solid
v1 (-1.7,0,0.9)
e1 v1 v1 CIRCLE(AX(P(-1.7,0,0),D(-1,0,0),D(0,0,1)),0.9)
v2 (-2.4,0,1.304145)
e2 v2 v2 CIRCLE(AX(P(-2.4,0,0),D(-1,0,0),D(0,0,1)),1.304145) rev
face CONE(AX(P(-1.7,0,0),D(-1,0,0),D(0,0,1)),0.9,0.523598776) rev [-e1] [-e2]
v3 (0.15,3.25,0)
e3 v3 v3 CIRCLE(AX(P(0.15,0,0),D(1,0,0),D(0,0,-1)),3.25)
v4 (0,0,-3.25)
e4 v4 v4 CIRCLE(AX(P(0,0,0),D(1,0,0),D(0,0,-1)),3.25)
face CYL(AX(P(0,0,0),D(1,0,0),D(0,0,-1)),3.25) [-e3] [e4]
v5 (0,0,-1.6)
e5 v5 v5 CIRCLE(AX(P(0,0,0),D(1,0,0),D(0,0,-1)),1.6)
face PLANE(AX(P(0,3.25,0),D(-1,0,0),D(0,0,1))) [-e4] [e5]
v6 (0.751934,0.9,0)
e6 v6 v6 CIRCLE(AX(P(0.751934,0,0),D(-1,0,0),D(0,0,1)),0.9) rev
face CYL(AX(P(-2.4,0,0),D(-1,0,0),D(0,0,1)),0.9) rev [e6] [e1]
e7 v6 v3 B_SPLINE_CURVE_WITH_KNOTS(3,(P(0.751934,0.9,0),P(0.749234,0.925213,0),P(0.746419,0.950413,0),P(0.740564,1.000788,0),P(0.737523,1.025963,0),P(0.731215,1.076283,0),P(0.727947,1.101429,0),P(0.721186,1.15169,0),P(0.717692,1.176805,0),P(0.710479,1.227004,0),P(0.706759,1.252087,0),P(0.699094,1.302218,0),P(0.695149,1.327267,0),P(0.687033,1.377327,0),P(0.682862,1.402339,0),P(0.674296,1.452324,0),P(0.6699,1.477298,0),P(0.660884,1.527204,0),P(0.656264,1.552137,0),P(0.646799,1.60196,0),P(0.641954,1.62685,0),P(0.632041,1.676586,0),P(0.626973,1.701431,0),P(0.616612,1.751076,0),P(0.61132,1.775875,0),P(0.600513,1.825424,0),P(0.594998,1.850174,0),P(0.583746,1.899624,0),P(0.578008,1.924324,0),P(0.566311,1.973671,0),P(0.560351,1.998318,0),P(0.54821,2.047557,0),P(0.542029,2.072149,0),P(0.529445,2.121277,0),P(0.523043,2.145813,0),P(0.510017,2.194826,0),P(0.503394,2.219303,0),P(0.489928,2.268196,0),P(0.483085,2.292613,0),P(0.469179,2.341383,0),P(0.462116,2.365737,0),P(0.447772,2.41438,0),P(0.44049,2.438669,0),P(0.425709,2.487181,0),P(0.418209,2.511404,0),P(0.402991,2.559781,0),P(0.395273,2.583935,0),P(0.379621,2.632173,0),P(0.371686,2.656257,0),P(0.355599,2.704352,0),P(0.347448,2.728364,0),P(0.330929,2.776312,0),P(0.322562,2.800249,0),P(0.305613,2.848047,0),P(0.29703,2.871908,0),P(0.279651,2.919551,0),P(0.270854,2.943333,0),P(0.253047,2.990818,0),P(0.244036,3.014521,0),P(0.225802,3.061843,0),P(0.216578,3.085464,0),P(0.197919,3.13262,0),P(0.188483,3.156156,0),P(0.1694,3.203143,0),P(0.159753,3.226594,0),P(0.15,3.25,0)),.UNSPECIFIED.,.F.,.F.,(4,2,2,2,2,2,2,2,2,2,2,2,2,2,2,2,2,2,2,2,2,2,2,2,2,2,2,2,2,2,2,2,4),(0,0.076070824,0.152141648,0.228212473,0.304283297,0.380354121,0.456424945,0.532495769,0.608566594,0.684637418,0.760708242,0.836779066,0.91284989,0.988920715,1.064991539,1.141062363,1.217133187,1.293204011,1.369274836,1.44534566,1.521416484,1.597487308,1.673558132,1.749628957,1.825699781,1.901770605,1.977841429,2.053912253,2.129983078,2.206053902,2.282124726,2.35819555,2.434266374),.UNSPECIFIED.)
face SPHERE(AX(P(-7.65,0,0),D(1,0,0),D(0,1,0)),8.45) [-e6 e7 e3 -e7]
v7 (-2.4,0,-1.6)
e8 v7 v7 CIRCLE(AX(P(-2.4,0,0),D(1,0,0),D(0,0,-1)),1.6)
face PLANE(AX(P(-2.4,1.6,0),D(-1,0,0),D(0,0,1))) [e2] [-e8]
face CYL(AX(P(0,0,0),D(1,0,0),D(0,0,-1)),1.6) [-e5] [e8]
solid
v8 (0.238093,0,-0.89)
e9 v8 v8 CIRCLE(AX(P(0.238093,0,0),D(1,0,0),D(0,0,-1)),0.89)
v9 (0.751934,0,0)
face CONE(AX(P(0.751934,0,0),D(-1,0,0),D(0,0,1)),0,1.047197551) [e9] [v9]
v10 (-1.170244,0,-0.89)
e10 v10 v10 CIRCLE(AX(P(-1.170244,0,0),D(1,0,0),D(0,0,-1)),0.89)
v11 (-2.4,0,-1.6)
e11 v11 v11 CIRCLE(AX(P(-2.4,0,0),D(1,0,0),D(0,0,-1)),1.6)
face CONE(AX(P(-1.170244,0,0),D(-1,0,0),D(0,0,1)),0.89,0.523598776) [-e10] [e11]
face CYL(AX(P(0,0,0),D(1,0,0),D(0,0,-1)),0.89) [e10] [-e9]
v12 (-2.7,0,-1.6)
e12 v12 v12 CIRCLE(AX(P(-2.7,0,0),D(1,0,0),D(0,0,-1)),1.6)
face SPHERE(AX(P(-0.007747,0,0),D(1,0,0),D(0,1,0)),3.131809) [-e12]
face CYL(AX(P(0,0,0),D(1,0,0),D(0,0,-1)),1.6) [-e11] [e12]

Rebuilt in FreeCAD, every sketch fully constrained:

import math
import FreeCAD as App
import Part
import Sketcher

V = App.Vector
Q = App.Units.Quantity


def edges_at(feature, points):
    """Names of the edges that pass closest to the given points."""
    edges = feature.Shape.Edges
    near = lambda p: min(range(len(edges)), key=lambda i: edges[i].distToShape(Part.Vertex(*p))[0])
    return sorted({f"Edge{near(p) + 1}" for p in points})

doc = App.newDocument("Part")
params = doc.addObject("Spreadsheet::Sheet", "Params")
for row, (alias, value) in enumerate([
    ("sketch1_radius", "8.45 mm"),
    ("sketch1_width", "2.4 mm"),
    ("sketch1_width2", "3.2 mm"),
    ("sketch1_height", "1.6 mm"),
    ("sketch1_width3", "0.15 mm"),
    ("revolution_angle", "360 deg"),
    ("sketch2_diameter", "1.8 mm"),
    ("hole_diameter", "1.8 mm"),
    ("chamfer_size", "0.7 mm"),
    ("chamfer_size2", "0.404145 mm"),
    ("sketch3_width", "0.3 mm"),
    ("sketch3_length", "1.42 mm"),
    ("revolution2_angle", "360 deg"),
], start=1):
    params.set(f"A{row}", alias)
    params.set(f"B{row}", "=" + value)
    params.setAlias(f"B{row}", alias)

body = doc.addObject("PartDesign::Body", "Body")

# Sketch on XY plane
sketch1 = body.newObject("Sketcher::SketchObject", "Sketch")
sketch1.AttachmentSupport = (doc.getObject("XY_Plane"), [""])
sketch1.MapMode = "FlatFace"
sketch1.addGeometry([
    Part.LineSegment(V(0, 3.25, 0), V(0, 1.6, 0)),  # 0
    Part.LineSegment(V(0, 1.6, 0), V(-2.4, 1.6, 0)),  # 1
    Part.LineSegment(V(-2.4, 1.6, 0), V(-2.4, 0, 0)),  # 2
    Part.LineSegment(V(-2.4, 0, 0), V(0.8, 0, 0)),  # 3
    Part.ArcOfCircle(Part.Circle(V(-7.65, 0, 0), V(0, 0, 1), 8.45), math.radians(0), math.radians(23)),  # 4
    Part.LineSegment(V(0.15, 3.25, 0), V(0, 3.25, 0)),  # 5
], False)
sketch1.addConstraint([
    Sketcher.Constraint("Coincident", 0, 2, 1, 1),
    Sketcher.Constraint("Coincident", 1, 2, 2, 1),
    Sketcher.Constraint("Coincident", 2, 2, 3, 1),
    Sketcher.Constraint("Coincident", 3, 2, 4, 1),
    Sketcher.Constraint("Coincident", 4, 2, 5, 1),
    Sketcher.Constraint("Coincident", 5, 2, 0, 1),
    Sketcher.Constraint("Vertical", 0),
    Sketcher.Constraint("Horizontal", 1),
    Sketcher.Constraint("Vertical", 2),
    Sketcher.Constraint("Horizontal", 3),
    Sketcher.Constraint("Horizontal", 5),
    Sketcher.Constraint("PointOnObject", 4, 3, -1),
    Sketcher.Constraint("PointOnObject", 0, 2, -2),
    Sketcher.Constraint("PointOnObject", 2, 2, -1),
    Sketcher.Constraint("Radius", 4, Q("8.45 mm")),
    Sketcher.Constraint("DistanceX", 1, 2, 1, 1, Q("2.4 mm")),
    Sketcher.Constraint("DistanceX", 3, 1, 3, 2, Q("3.2 mm")),
    Sketcher.Constraint("DistanceY", 2, 2, 2, 1, Q("1.6 mm")),
    Sketcher.Constraint("DistanceX", 5, 2, 5, 1, Q("0.15 mm")),
])
sketch1.setExpression("Constraints[14]", "Params.sketch1_radius")
sketch1.setExpression("Constraints[15]", "Params.sketch1_width")
sketch1.setExpression("Constraints[16]", "Params.sketch1_width2")
sketch1.setExpression("Constraints[17]", "Params.sketch1_height")
sketch1.setExpression("Constraints[18]", "Params.sketch1_width3")
revolution = body.newObject("PartDesign::Revolution", "Revolution")
revolution.Profile = sketch1
revolution.ReferenceAxis = (sketch1, ["H_Axis"])
revolution.setExpression("Angle", "Params.revolution_angle")

# Sketch on YZ plane
sketch2 = body.newObject("Sketcher::SketchObject", "Sketch001")
sketch2.AttachmentSupport = (doc.getObject("YZ_Plane"), [""])
sketch2.MapMode = "FlatFace"
sketch2.AttachmentOffset = App.Placement(V(0, 0, -2.4), App.Rotation())
sketch2.addGeometry(Part.Circle(V(0, 0, 0), V(0, 0, 1), 0.9), False)
sketch2.addConstraint([
    Sketcher.Constraint("Coincident", 0, 3, -1, 1),
    Sketcher.Constraint("Diameter", 0, Q("1.8 mm")),
])
sketch2.setExpression("Constraints[1]", "Params.sketch2_diameter")
doc.recompute()
hole = body.newObject("PartDesign::Hole", "Hole")
hole.Profile = sketch2
hole.ThreadType = "None"
hole.setExpression("Diameter", "Params.hole_diameter")
hole.DepthType = "ThroughAll"
hole.Reversed = True
doc.recompute()

chamfer = body.newObject("PartDesign::Chamfer", "Chamfer")
chamfer.Base = (hole, edges_at(hole, [(-2.4, 0, 0.9)]))
chamfer.ChamferType = "Two distances"
chamfer.setExpression("Size", "Params.chamfer_size")
chamfer.setExpression("Size2", "Params.chamfer_size2")
chamfer.FlipDirection = True
body2 = doc.addObject("PartDesign::Body", "Body001")

# Sketch on XY plane
sketch3 = body2.newObject("Sketcher::SketchObject", "Sketch002")
sketch3.AttachmentSupport = (doc.getObject("XY_Plane001"), [""])
sketch3.MapMode = "FlatFace"
sketch3.addGeometry([
    Part.LineSegment(V(0.75, 0, 0), V(0.24, 0.89, 0)),  # 0
    Part.LineSegment(V(0.24, 0.89, 0), V(-1.17, 0.89, 0)),  # 1
    Part.LineSegment(V(-1.17, 0.89, 0), V(-2.4, 1.6, 0)),  # 2
    Part.LineSegment(V(-2.4, 1.6, 0), V(-2.7, 1.6, 0)),  # 3
    Part.ArcOfCircle(Part.Circle(V(-0.01, 0, 0), V(0, 0, 1), 3.13), math.radians(149), math.radians(180)),  # 4
    Part.LineSegment(V(-3.14, 0, 0), V(0.75, 0, 0)),  # 5
], False)
sketch3.addConstraint([
    Sketcher.Constraint("Coincident", 0, 2, 1, 1),
    Sketcher.Constraint("Coincident", 1, 2, 2, 1),
    Sketcher.Constraint("Coincident", 2, 2, 3, 1),
    Sketcher.Constraint("Coincident", 3, 2, 4, 1),
    Sketcher.Constraint("Coincident", 4, 2, 5, 1),
    Sketcher.Constraint("Coincident", 5, 2, 0, 1),
    Sketcher.Constraint("Horizontal", 1),
    Sketcher.Constraint("Horizontal", 3),
    Sketcher.Constraint("Horizontal", 5),
    Sketcher.Constraint("PointOnObject", 4, 3, -1),
    Sketcher.Constraint("PointOnObject", 4, 2, -1),
    Sketcher.Constraint("Angle", 0, Q("120 deg")),
    Sketcher.Constraint("Angle", 2, Q("150 deg")),
    Sketcher.Constraint("DistanceX", 3, 2, 3, 1, Q("0.3 mm")),
    Sketcher.Constraint("DistanceX", 2, 2, -1, 1, Q("2.4 mm")),
    Sketcher.Constraint("DistanceY", -1, 1, 2, 2, Q("1.6 mm")),
    Sketcher.Constraint("Distance", 2, Q("1.42 mm")),
    Sketcher.Constraint("Radius", 4, Q("3.131809 mm")),
    Sketcher.Constraint("DistanceX", 5, 1, 5, 2, Q("3.89149 mm")),
])
sketch3.setExpression("Constraints[13]", "Params.sketch3_width")
sketch3.setExpression("Constraints[16]", "Params.sketch3_length")
revolution2 = body2.newObject("PartDesign::Revolution", "Revolution001")
revolution2.Profile = sketch3
revolution2.ReferenceAxis = (sketch3, ["H_Axis"])
revolution2.setExpression("Angle", "Params.revolution2_angle")

doc.recompute()
